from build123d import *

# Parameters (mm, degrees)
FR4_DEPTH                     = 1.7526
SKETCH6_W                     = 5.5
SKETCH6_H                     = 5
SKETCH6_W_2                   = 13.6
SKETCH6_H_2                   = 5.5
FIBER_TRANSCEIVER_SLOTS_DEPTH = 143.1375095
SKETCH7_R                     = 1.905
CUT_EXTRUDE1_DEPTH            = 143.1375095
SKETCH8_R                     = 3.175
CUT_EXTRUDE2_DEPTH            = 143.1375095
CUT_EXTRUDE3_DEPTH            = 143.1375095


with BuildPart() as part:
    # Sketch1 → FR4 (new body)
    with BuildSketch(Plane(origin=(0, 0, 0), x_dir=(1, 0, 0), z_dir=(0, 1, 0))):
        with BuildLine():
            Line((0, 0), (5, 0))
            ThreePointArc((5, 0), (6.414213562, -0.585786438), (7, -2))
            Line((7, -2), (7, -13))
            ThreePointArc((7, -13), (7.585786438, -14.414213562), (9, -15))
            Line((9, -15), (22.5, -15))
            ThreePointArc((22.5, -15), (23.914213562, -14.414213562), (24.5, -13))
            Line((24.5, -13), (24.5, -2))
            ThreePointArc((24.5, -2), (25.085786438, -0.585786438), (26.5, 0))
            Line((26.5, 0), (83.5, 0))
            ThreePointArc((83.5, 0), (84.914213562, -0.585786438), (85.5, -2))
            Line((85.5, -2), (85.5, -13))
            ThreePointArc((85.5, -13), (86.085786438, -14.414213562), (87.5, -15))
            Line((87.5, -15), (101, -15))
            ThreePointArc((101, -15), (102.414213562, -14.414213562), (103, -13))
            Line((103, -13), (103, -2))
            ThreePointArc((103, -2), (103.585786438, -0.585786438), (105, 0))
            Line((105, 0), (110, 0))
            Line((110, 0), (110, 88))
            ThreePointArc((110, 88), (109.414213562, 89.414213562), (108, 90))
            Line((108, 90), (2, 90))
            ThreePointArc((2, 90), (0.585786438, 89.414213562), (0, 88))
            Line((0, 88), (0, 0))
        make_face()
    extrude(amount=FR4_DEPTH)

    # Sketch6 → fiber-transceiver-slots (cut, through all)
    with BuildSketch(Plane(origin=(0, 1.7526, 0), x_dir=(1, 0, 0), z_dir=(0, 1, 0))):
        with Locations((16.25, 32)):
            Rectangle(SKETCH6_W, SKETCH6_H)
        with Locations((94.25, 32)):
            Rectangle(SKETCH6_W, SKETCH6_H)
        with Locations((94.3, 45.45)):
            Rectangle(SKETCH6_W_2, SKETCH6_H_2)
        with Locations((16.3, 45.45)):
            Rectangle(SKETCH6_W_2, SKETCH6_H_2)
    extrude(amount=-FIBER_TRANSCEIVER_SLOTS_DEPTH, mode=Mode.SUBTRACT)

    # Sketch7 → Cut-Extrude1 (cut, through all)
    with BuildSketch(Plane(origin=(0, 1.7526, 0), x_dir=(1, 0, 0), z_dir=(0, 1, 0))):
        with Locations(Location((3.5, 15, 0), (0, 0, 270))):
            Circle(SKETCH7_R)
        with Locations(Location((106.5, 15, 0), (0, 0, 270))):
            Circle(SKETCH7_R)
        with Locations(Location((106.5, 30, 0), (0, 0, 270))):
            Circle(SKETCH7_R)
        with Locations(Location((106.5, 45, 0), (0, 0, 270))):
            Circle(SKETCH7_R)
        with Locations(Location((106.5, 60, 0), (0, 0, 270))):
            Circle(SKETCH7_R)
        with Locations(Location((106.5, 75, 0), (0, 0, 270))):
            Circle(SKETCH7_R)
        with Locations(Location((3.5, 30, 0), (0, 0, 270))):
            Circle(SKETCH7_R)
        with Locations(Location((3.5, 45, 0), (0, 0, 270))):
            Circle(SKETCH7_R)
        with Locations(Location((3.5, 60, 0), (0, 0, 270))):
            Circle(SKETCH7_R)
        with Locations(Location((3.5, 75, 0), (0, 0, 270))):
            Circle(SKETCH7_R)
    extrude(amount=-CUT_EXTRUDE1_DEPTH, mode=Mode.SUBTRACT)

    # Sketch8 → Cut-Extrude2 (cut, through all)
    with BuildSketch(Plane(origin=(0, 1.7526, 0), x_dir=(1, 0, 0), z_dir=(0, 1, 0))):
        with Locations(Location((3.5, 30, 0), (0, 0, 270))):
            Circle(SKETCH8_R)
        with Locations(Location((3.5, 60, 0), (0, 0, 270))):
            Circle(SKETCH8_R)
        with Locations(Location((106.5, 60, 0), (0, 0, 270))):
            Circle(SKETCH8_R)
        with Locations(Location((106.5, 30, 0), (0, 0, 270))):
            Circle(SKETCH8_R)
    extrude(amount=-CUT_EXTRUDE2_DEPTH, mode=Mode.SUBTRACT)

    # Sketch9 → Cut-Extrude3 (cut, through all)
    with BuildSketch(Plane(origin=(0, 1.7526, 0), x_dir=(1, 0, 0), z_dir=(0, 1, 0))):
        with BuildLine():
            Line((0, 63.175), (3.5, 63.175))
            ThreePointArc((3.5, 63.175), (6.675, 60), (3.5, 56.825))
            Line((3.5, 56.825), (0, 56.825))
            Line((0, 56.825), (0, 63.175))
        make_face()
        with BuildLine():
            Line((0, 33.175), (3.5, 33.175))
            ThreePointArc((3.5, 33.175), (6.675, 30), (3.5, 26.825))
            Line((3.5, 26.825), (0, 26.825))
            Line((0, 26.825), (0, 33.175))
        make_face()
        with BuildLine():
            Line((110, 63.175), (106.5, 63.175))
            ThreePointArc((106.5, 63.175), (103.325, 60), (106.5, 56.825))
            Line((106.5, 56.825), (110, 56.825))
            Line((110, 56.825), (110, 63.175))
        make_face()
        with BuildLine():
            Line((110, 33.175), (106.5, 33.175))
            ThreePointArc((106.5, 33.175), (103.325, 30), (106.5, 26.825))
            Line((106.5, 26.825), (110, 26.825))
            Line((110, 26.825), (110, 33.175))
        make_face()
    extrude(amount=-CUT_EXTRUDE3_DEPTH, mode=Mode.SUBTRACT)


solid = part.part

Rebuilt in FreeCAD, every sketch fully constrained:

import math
import FreeCAD as App
import Part
import Sketcher


def add_polygon(sketch, points):
    """Adds a closed chain of lines whose ends are joined by coincident constraints."""
    first, n = sketch.GeometryCount, len(points)
    for a, b in zip(points, points[1:] + points[:1]):
        sketch.addGeometry(Part.LineSegment(App.Vector(*a, 0), App.Vector(*b, 0)), False)
    for i in range(n):
        sketch.addConstraint(Sketcher.Constraint("Coincident", first + i, 2, first + (i + 1) % n, 1))

doc = App.newDocument("Part")
body = doc.addObject("PartDesign::Body", "Body")

# Sketch on XZ plane
sketch1 = body.newObject("Sketcher::SketchObject", "Sketch")
sketch1.AttachmentSupport = (doc.getObject("XZ_Plane"), [""])
sketch1.MapMode = "FlatFace"
sketch1.addGeometry([
    Part.LineSegment(App.Vector(0, 0, 0), App.Vector(5, 0, 0)),  # 0
    Part.ArcOfCircle(Part.Circle(App.Vector(5, 2, 0), App.Vector(0, 0, 1), 2), math.radians(-90), math.radians(0)),  # 1
    Part.LineSegment(App.Vector(7, 2, 0), App.Vector(7, 13, 0)),  # 2
    Part.ArcOfCircle(Part.Circle(App.Vector(9, 13, 0), App.Vector(0, 0, 1), 2), math.radians(90), math.radians(180)),  # 3
    Part.LineSegment(App.Vector(9, 15, 0), App.Vector(22.5, 15, 0)),  # 4
    Part.ArcOfCircle(Part.Circle(App.Vector(22.5, 13, 0), App.Vector(0, 0, 1), 2), math.radians(0), math.radians(90)),  # 5
    Part.LineSegment(App.Vector(24.5, 13, 0), App.Vector(24.5, 2, 0)),  # 6
    Part.ArcOfCircle(Part.Circle(App.Vector(26.5, 2, 0), App.Vector(0, 0, 1), 2), math.radians(-180), math.radians(-90)),  # 7
    Part.LineSegment(App.Vector(26.5, 0, 0), App.Vector(83.5, 0, 0)),  # 8
    Part.ArcOfCircle(Part.Circle(App.Vector(83.5, 2, 0), App.Vector(0, 0, 1), 2), math.radians(-90), math.radians(0)),  # 9
    Part.LineSegment(App.Vector(85.5, 2, 0), App.Vector(85.5, 13, 0)),  # 10
    Part.ArcOfCircle(Part.Circle(App.Vector(87.5, 13, 0), App.Vector(0, 0, 1), 2), math.radians(90), math.radians(180)),  # 11
    Part.LineSegment(App.Vector(87.5, 15, 0), App.Vector(101, 15, 0)),  # 12
    Part.ArcOfCircle(Part.Circle(App.Vector(101, 13, 0), App.Vector(0, 0, 1), 2), math.radians(0), math.radians(90)),  # 13
    Part.LineSegment(App.Vector(103, 13, 0), App.Vector(103, 2, 0)),  # 14
    Part.ArcOfCircle(Part.Circle(App.Vector(105, 2, 0), App.Vector(0, 0, 1), 2), math.radians(-180), math.radians(-90)),  # 15
    Part.LineSegment(App.Vector(105, 0, 0), App.Vector(110, 0, 0)),  # 16
    Part.LineSegment(App.Vector(110, 0, 0), App.Vector(110, -88, 0)),  # 17
    Part.ArcOfCircle(Part.Circle(App.Vector(108, -88, 0), App.Vector(0, 0, 1), 2), math.radians(-90), math.radians(0)),  # 18
    Part.LineSegment(App.Vector(108, -90, 0), App.Vector(2, -90, 0)),  # 19
    Part.ArcOfCircle(Part.Circle(App.Vector(2, -88, 0), App.Vector(0, 0, 1), 2), math.radians(-180), math.radians(-90)),  # 20
    Part.LineSegment(App.Vector(0, -88, 0), App.Vector(0, 0, 0)),  # 21
], False)
sketch1.addConstraint([
    Sketcher.Constraint("Tangent", 0, 2, 1, 1),
    Sketcher.Constraint("Tangent", 1, 2, 2, 1),
    Sketcher.Constraint("Tangent", 2, 2, 3, 2),
    Sketcher.Constraint("Tangent", 3, 1, 4, 1),
    Sketcher.Constraint("Tangent", 4, 2, 5, 2),
    Sketcher.Constraint("Tangent", 5, 1, 6, 1),
    Sketcher.Constraint("Tangent", 6, 2, 7, 1),
    Sketcher.Constraint("Tangent", 7, 2, 8, 1),
    Sketcher.Constraint("Tangent", 8, 2, 9, 1),
    Sketcher.Constraint("Tangent", 9, 2, 10, 1),
    Sketcher.Constraint("Tangent", 10, 2, 11, 2),
    Sketcher.Constraint("Tangent", 11, 1, 12, 1),
    Sketcher.Constraint("Tangent", 12, 2, 13, 2),
    Sketcher.Constraint("Tangent", 13, 1, 14, 1),
    Sketcher.Constraint("Tangent", 14, 2, 15, 1),
    Sketcher.Constraint("Tangent", 15, 2, 16, 1),
    Sketcher.Constraint("Coincident", 16, 2, 17, 1),
    Sketcher.Constraint("Tangent", 17, 2, 18, 2),
    Sketcher.Constraint("Tangent", 18, 1, 19, 1),
    Sketcher.Constraint("Tangent", 19, 2, 20, 2),
    Sketcher.Constraint("Tangent", 20, 1, 21, 1),
    Sketcher.Constraint("Coincident", 21, 2, 0, 1),
    Sketcher.Constraint("Horizontal", 0),
    Sketcher.Constraint("Vertical", 2),
    Sketcher.Constraint("Horizontal", 4),
    Sketcher.Constraint("Vertical", 6),
    Sketcher.Constraint("Horizontal", 8),
    Sketcher.Constraint("Vertical", 10),
    Sketcher.Constraint("Horizontal", 12),
    Sketcher.Constraint("Vertical", 14),
    Sketcher.Constraint("Horizontal", 16),
    Sketcher.Constraint("Vertical", 17),
    Sketcher.Constraint("Horizontal", 19),
    Sketcher.Constraint("Vertical", 21),
    Sketcher.Constraint("Coincident", 21, 2, -1, 1),
    Sketcher.Constraint("Equal", 1, 3),
    Sketcher.Constraint("Equal", 3, 5),
    Sketcher.Constraint("Equal", 5, 7),
    Sketcher.Constraint("Equal", 7, 9),
    Sketcher.Constraint("Equal", 9, 11),
    Sketcher.Constraint("Equal", 11, 13),
    Sketcher.Constraint("Equal", 13, 15),
    Sketcher.Constraint("Equal", 15, 18),
    Sketcher.Constraint("Equal", 18, 20),
    Sketcher.Constraint("PointOnObject", 7, 2, -1),
    Sketcher.Constraint("PointOnObject", 15, 2, -1),
    Sketcher.Constraint("Horizontal", 5, 3, 11, 3),
    Sketcher.Constraint("Equal", 4, 12),
    Sketcher.Constraint("Equal", 0, 16),
    Sketcher.Constraint("Radius", 1, 2.0),
    Sketcher.Constraint("DistanceX", 0, 1, 0, 2, 5.0),
    Sketcher.Constraint("DistanceX", 8, 1, 8, 2, 57.0),
    Sketcher.Constraint("DistanceX", 19, 2, 19, 1, 106.0),
    Sketcher.Constraint("DistanceY", 2, 1, 2, 2, 11.0),
    Sketcher.Constraint("DistanceY", 17, 2, 17, 1, 88.0),
])
pad1 = body.newObject("PartDesign::Pad", "Pad")
pad1.Profile = sketch1
pad1.Length = 1.7526
pad1.Reversed = True

# Sketch on XZ plane
sketch2 = body.newObject("Sketcher::SketchObject", "Sketch001")
sketch2.AttachmentSupport = (doc.getObject("XZ_Plane"), [""])
sketch2.MapMode = "FlatFace"
sketch2.AttachmentOffset = App.Placement(App.Vector(0, 0, -1.7526), App.Rotation())
add_polygon(sketch2, [(14, -34), (14, -30), (19, -30), (19, -34)])  # lines 0-3
add_polygon(sketch2, [(92, -34), (92, -30), (97, -30), (97, -34)])  # lines 4-7
add_polygon(sketch2, [(88, -48), (88, -43), (101, -43), (101, -48)])  # lines 8-11
add_polygon(sketch2, [(10, -48), (10, -43), (23, -43), (23, -48)])  # lines 12-15
sketch2.addConstraint([
    Sketcher.Constraint("Vertical", 0),
    Sketcher.Constraint("Horizontal", 1),
    Sketcher.Constraint("Vertical", 2),
    Sketcher.Constraint("Horizontal", 3),
    Sketcher.Constraint("Vertical", 4),
    Sketcher.Constraint("Horizontal", 5),
    Sketcher.Constraint("Vertical", 6),
    Sketcher.Constraint("Horizontal", 7),
    Sketcher.Constraint("Vertical", 8),
    Sketcher.Constraint("Horizontal", 9),
    Sketcher.Constraint("Vertical", 10),
    Sketcher.Constraint("Horizontal", 11),
    Sketcher.Constraint("Vertical", 12),
    Sketcher.Constraint("Horizontal", 13),
    Sketcher.Constraint("Vertical", 14),
    Sketcher.Constraint("Horizontal", 15),
    Sketcher.Constraint("Horizontal", 1, 2, 4, 2),
    Sketcher.Constraint("Horizontal", 3, 2, 6, 2),
    Sketcher.Constraint("Horizontal", 9, 2, 12, 2),
    Sketcher.Constraint("Horizontal", 11, 2, 14, 2),
    Sketcher.Constraint("Equal", 3, 5),
    Sketcher.Constraint("Equal", 11, 13),
    Sketcher.Constraint("Equal", 7, 8),
    Sketcher.Constraint("DistanceY", 0, 1, 0, 2, 5.0),
    Sketcher.Constraint("DistanceX", 1, 1, 1, 2, 5.5),
    Sketcher.Constraint("DistanceX", 9, 1, 9, 2, 13.6),
    Sketcher.Constraint("DistanceX", -1, 1, 1, 2, 19.0),
    Sketcher.Constraint("DistanceX", -1, 1, 5, 2, 97.0),
    Sketcher.Constraint("DistanceX", 8, 2, 7, 2, 4.0),
    Sketcher.Constraint("DistanceX", 12, 2, 3, 2, 4.0),
    Sketcher.Constraint("DistanceY", 0, 2, -1, 1, 29.5),
    Sketcher.Constraint("DistanceY", 8, 2, -1, 1, 42.7),
])
pocket1 = body.newObject("PartDesign::Pocket", "Pocket")
pocket1.Profile = sketch2
pocket1.Type = "ThroughAll"
pocket1.Reversed = True

# Sketch on XZ plane
sketch3 = body.newObject("Sketcher::SketchObject", "Sketch002")
sketch3.AttachmentSupport = (doc.getObject("XZ_Plane"), [""])
sketch3.MapMode = "FlatFace"
sketch3.AttachmentOffset = App.Placement(App.Vector(0, 0, -1.7526), App.Rotation())
sketch3.addGeometry([
    Part.Circle(App.Vector(3.5, -15, 0), App.Vector(0, 0, 1), 1.9),  # 0
    Part.Circle(App.Vector(106.5, -15, 0), App.Vector(0, 0, 1), 1.9),  # 1
    Part.Circle(App.Vector(106.5, -30, 0), App.Vector(0, 0, 1), 1.9),  # 2
    Part.Circle(App.Vector(106.5, -45, 0), App.Vector(0, 0, 1), 1.9),  # 3
    Part.Circle(App.Vector(106.5, -60, 0), App.Vector(0, 0, 1), 1.9),  # 4
    Part.Circle(App.Vector(106.5, -75, 0), App.Vector(0, 0, 1), 1.9),  # 5
    Part.Circle(App.Vector(3.5, -30, 0), App.Vector(0, 0, 1), 1.9),  # 6
    Part.Circle(App.Vector(3.5, -45, 0), App.Vector(0, 0, 1), 1.9),  # 7
    Part.Circle(App.Vector(3.5, -60, 0), App.Vector(0, 0, 1), 1.9),  # 8
    Part.Circle(App.Vector(3.5, -75, 0), App.Vector(0, 0, 1), 1.9),  # 9
], False)
sketch3.addConstraint([
    Sketcher.Constraint("Equal", 0, 1),
    Sketcher.Constraint("Equal", 1, 2),
    Sketcher.Constraint("Equal", 2, 3),
    Sketcher.Constraint("Equal", 3, 4),
    Sketcher.Constraint("Equal", 4, 5),
    Sketcher.Constraint("Equal", 5, 6),
    Sketcher.Constraint("Equal", 6, 7),
    Sketcher.Constraint("Equal", 7, 8),
    Sketcher.Constraint("Equal", 8, 9),
    Sketcher.Constraint("Horizontal", 0, 3, 1, 3),
    Sketcher.Constraint("Horizontal", 2, 3, 6, 3),
    Sketcher.Constraint("Horizontal", 3, 3, 7, 3),
    Sketcher.Constraint("Horizontal", 4, 3, 8, 3),
    Sketcher.Constraint("Horizontal", 5, 3, 9, 3),
    Sketcher.Constraint("Vertical", 1, 3, 2, 3),
    Sketcher.Constraint("Vertical", 2, 3, 3, 3),
    Sketcher.Constraint("Vertical", 3, 3, 4, 3),
    Sketcher.Constraint("Vertical", 4, 3, 5, 3),
    Sketcher.Constraint("Vertical", 0, 3, 6, 3),
    Sketcher.Constraint("Vertical", 6, 3, 7, 3),
    Sketcher.Constraint("Vertical", 7, 3, 8, 3),
    Sketcher.Constraint("Vertical", 8, 3, 9, 3),
    Sketcher.Constraint("Diameter", 0, 3.81),
    Sketcher.Constraint("DistanceY", 0, 3, -1, 1, 15.0),
    Sketcher.Constraint("DistanceY", 2, 3, -1, 1, 30.0),
    Sketcher.Constraint("DistanceY", 3, 3, -1, 1, 45.0),
    Sketcher.Constraint("DistanceY", 4, 3, -1, 1, 60.0),
    Sketcher.Constraint("DistanceY", 5, 3, -1, 1, 75.0),
    Sketcher.Constraint("DistanceX", 0, 3, 1, 3, 103.0),
    Sketcher.Constraint("DistanceX", -1, 1, 0, 3, 3.5),
])
pocket2 = body.newObject("PartDesign::Pocket", "Pocket001")
pocket2.Profile = sketch3
pocket2.Type = "ThroughAll"
pocket2.Reversed = True

# Sketch on XZ plane
sketch4 = body.newObject("Sketcher::SketchObject", "Sketch003")
sketch4.AttachmentSupport = (doc.getObject("XZ_Plane"), [""])
sketch4.MapMode = "FlatFace"
sketch4.AttachmentOffset = App.Placement(App.Vector(0, 0, -1.7526), App.Rotation())
sketch4.addGeometry([
    Part.Circle(App.Vector(3.5, -30, 0), App.Vector(0, 0, 1), 3.2),
    Part.Circle(App.Vector(3.5, -60, 0), App.Vector(0, 0, 1), 3.2),
    Part.Circle(App.Vector(106.5, -60, 0), App.Vector(0, 0, 1), 3.2),
    Part.Circle(App.Vector(106.5, -30, 0), App.Vector(0, 0, 1), 3.2),
], False)
sketch4.addConstraint([
    Sketcher.Constraint("Equal", 0, 1),
    Sketcher.Constraint("Equal", 1, 2),
    Sketcher.Constraint("Equal", 2, 3),
    Sketcher.Constraint("Horizontal", 1, 3, 2, 3),
    Sketcher.Constraint("Horizontal", 0, 3, 3, 3),
    Sketcher.Constraint("Vertical", 0, 3, 1, 3),
    Sketcher.Constraint("Vertical", 2, 3, 3, 3),
    Sketcher.Constraint("Diameter", 0, 6.35),
    Sketcher.Constraint("DistanceY", 0, 3, -1, 1, 30.0),
    Sketcher.Constraint("DistanceY", 1, 3, -1, 1, 60.0),
    Sketcher.Constraint("DistanceX", 1, 3, 2, 3, 103.0),
    Sketcher.Constraint("DistanceX", -1, 1, 0, 3, 3.5),
])
pocket3 = body.newObject("PartDesign::Pocket", "Pocket002")
pocket3.Profile = sketch4
pocket3.Type = "ThroughAll"
pocket3.Reversed = True

# Sketch on XZ plane
sketch5 = body.newObject("Sketcher::SketchObject", "Sketch004")
sketch5.AttachmentSupport = (doc.getObject("XZ_Plane"), [""])
sketch5.MapMode = "FlatFace"
sketch5.AttachmentOffset = App.Placement(App.Vector(0, 0, -1.7526), App.Rotation())
sketch5.addGeometry([
    Part.LineSegment(App.Vector(3.5, -63.2, 0), App.Vector(0, -63.2, 0)),  # 0
    Part.LineSegment(App.Vector(0, -63.2, 0), App.Vector(0, -56.8, 0)),  # 1
    Part.LineSegment(App.Vector(0, -56.8, 0), App.Vector(3.5, -56.8, 0)),  # 2
    Part.ArcOfCircle(Part.Circle(App.Vector(3.5, -60, 0), App.Vector(0, 0, 1), 3.2), math.radians(-90), math.radians(90)),  # 3
    Part.LineSegment(App.Vector(3.5, -33.2, 0), App.Vector(0, -33.2, 0)),  # 4
    Part.LineSegment(App.Vector(0, -33.2, 0), App.Vector(0, -26.8, 0)),  # 5
    Part.LineSegment(App.Vector(0, -26.8, 0), App.Vector(3.5, -26.8, 0)),  # 6
    Part.ArcOfCircle(Part.Circle(App.Vector(3.5, -30, 0), App.Vector(0, 0, 1), 3.2), math.radians(-90), math.radians(90)),  # 7
    Part.LineSegment(App.Vector(110, -63.2, 0), App.Vector(106.5, -63.2, 0)),  # 8
    Part.ArcOfCircle(Part.Circle(App.Vector(106.5, -60, 0), App.Vector(0, 0, 1), 3.2), math.radians(90), math.radians(270)),  # 9
    Part.LineSegment(App.Vector(106.5, -56.8, 0), App.Vector(110, -56.8, 0)),  # 10
    Part.LineSegment(App.Vector(110, -56.8, 0), App.Vector(110, -63.2, 0)),  # 11
    Part.LineSegment(App.Vector(110, -33.2, 0), App.Vector(106.5, -33.2, 0)),  # 12
    Part.ArcOfCircle(Part.Circle(App.Vector(106.5, -30, 0), App.Vector(0, 0, 1), 3.2), math.radians(90), math.radians(270)),  # 13
    Part.LineSegment(App.Vector(106.5, -26.8, 0), App.Vector(110, -26.8, 0)),  # 14
    Part.LineSegment(App.Vector(110, -26.8, 0), App.Vector(110, -33.2, 0)),  # 15
], False)
sketch5.addConstraint([
    Sketcher.Constraint("Coincident", 0, 2, 1, 1),
    Sketcher.Constraint("Coincident", 1, 2, 2, 1),
    Sketcher.Constraint("Tangent", 2, 2, 3, 2),
    Sketcher.Constraint("Tangent", 3, 1, 0, 1),
    Sketcher.Constraint("Coincident", 4, 2, 5, 1),
    Sketcher.Constraint("Coincident", 5, 2, 6, 1),
    Sketcher.Constraint("Tangent", 6, 2, 7, 2),
    Sketcher.Constraint("Tangent", 7, 1, 4, 1),
    Sketcher.Constraint("Tangent", 8, 2, 9, 2),
    Sketcher.Constraint("Tangent", 9, 1, 10, 1),
    Sketcher.Constraint("Coincident", 10, 2, 11, 1),
    Sketcher.Constraint("Coincident", 11, 2, 8, 1),
    Sketcher.Constraint("Tangent", 12, 2, 13, 2),
    Sketcher.Constraint("Tangent", 13, 1, 14, 1),
    Sketcher.Constraint("Coincident", 14, 2, 15, 1),
    Sketcher.Constraint("Coincident", 15, 2, 12, 1),
    Sketcher.Constraint("Horizontal", 0),
    Sketcher.Constraint("Vertical", 1),
    Sketcher.Constraint("Horizontal", 2),
    Sketcher.Constraint("Horizontal", 4),
    Sketcher.Constraint("Vertical", 5),
    Sketcher.Constraint("Horizontal", 6),
    Sketcher.Constraint("Horizontal", 8),
    Sketcher.Constraint("Horizontal", 10),
    Sketcher.Constraint("Vertical", 11),
    Sketcher.Constraint("Horizontal", 12),
    Sketcher.Constraint("Horizontal", 14),
    Sketcher.Constraint("Vertical", 15),
    Sketcher.Constraint("Equal", 3, 7),
    Sketcher.Constraint("Equal", 7, 9),
    Sketcher.Constraint("Equal", 9, 13),
    Sketcher.Constraint("PointOnObject", 0, 2, -2),
    Sketcher.Constraint("PointOnObject", 4, 2, -2),
    Sketcher.Constraint("Horizontal", 3, 3, 9, 3),
    Sketcher.Constraint("Horizontal", 7, 3, 13, 3),
    Sketcher.Constraint("Vertical", 3, 3, 7, 3),
    Sketcher.Constraint("Vertical", 9, 3, 13, 3),
    Sketcher.Constraint("Vertical", 11, 2, 14, 2),
    Sketcher.Constraint("Equal", 6, 8),
    Sketcher.Constraint("DistanceX", 0, 2, 0, 1, 3.5),
    Sketcher.Constraint("DistanceY", 3, 3, -1, 1, 60.0),
    Sketcher.Constraint("DistanceY", 7, 3, -1, 1, 30.0),
    Sketcher.Constraint("DistanceX", -1, 1, 10, 2, 110.0),
    Sketcher.Constraint("Radius", 3, 3.175),
])
pocket4 = body.newObject("PartDesign::Pocket", "Pocket003")
pocket4.Profile = sketch5
pocket4.Type = "ThroughAll"
pocket4.Reversed = True

doc.recompute()
